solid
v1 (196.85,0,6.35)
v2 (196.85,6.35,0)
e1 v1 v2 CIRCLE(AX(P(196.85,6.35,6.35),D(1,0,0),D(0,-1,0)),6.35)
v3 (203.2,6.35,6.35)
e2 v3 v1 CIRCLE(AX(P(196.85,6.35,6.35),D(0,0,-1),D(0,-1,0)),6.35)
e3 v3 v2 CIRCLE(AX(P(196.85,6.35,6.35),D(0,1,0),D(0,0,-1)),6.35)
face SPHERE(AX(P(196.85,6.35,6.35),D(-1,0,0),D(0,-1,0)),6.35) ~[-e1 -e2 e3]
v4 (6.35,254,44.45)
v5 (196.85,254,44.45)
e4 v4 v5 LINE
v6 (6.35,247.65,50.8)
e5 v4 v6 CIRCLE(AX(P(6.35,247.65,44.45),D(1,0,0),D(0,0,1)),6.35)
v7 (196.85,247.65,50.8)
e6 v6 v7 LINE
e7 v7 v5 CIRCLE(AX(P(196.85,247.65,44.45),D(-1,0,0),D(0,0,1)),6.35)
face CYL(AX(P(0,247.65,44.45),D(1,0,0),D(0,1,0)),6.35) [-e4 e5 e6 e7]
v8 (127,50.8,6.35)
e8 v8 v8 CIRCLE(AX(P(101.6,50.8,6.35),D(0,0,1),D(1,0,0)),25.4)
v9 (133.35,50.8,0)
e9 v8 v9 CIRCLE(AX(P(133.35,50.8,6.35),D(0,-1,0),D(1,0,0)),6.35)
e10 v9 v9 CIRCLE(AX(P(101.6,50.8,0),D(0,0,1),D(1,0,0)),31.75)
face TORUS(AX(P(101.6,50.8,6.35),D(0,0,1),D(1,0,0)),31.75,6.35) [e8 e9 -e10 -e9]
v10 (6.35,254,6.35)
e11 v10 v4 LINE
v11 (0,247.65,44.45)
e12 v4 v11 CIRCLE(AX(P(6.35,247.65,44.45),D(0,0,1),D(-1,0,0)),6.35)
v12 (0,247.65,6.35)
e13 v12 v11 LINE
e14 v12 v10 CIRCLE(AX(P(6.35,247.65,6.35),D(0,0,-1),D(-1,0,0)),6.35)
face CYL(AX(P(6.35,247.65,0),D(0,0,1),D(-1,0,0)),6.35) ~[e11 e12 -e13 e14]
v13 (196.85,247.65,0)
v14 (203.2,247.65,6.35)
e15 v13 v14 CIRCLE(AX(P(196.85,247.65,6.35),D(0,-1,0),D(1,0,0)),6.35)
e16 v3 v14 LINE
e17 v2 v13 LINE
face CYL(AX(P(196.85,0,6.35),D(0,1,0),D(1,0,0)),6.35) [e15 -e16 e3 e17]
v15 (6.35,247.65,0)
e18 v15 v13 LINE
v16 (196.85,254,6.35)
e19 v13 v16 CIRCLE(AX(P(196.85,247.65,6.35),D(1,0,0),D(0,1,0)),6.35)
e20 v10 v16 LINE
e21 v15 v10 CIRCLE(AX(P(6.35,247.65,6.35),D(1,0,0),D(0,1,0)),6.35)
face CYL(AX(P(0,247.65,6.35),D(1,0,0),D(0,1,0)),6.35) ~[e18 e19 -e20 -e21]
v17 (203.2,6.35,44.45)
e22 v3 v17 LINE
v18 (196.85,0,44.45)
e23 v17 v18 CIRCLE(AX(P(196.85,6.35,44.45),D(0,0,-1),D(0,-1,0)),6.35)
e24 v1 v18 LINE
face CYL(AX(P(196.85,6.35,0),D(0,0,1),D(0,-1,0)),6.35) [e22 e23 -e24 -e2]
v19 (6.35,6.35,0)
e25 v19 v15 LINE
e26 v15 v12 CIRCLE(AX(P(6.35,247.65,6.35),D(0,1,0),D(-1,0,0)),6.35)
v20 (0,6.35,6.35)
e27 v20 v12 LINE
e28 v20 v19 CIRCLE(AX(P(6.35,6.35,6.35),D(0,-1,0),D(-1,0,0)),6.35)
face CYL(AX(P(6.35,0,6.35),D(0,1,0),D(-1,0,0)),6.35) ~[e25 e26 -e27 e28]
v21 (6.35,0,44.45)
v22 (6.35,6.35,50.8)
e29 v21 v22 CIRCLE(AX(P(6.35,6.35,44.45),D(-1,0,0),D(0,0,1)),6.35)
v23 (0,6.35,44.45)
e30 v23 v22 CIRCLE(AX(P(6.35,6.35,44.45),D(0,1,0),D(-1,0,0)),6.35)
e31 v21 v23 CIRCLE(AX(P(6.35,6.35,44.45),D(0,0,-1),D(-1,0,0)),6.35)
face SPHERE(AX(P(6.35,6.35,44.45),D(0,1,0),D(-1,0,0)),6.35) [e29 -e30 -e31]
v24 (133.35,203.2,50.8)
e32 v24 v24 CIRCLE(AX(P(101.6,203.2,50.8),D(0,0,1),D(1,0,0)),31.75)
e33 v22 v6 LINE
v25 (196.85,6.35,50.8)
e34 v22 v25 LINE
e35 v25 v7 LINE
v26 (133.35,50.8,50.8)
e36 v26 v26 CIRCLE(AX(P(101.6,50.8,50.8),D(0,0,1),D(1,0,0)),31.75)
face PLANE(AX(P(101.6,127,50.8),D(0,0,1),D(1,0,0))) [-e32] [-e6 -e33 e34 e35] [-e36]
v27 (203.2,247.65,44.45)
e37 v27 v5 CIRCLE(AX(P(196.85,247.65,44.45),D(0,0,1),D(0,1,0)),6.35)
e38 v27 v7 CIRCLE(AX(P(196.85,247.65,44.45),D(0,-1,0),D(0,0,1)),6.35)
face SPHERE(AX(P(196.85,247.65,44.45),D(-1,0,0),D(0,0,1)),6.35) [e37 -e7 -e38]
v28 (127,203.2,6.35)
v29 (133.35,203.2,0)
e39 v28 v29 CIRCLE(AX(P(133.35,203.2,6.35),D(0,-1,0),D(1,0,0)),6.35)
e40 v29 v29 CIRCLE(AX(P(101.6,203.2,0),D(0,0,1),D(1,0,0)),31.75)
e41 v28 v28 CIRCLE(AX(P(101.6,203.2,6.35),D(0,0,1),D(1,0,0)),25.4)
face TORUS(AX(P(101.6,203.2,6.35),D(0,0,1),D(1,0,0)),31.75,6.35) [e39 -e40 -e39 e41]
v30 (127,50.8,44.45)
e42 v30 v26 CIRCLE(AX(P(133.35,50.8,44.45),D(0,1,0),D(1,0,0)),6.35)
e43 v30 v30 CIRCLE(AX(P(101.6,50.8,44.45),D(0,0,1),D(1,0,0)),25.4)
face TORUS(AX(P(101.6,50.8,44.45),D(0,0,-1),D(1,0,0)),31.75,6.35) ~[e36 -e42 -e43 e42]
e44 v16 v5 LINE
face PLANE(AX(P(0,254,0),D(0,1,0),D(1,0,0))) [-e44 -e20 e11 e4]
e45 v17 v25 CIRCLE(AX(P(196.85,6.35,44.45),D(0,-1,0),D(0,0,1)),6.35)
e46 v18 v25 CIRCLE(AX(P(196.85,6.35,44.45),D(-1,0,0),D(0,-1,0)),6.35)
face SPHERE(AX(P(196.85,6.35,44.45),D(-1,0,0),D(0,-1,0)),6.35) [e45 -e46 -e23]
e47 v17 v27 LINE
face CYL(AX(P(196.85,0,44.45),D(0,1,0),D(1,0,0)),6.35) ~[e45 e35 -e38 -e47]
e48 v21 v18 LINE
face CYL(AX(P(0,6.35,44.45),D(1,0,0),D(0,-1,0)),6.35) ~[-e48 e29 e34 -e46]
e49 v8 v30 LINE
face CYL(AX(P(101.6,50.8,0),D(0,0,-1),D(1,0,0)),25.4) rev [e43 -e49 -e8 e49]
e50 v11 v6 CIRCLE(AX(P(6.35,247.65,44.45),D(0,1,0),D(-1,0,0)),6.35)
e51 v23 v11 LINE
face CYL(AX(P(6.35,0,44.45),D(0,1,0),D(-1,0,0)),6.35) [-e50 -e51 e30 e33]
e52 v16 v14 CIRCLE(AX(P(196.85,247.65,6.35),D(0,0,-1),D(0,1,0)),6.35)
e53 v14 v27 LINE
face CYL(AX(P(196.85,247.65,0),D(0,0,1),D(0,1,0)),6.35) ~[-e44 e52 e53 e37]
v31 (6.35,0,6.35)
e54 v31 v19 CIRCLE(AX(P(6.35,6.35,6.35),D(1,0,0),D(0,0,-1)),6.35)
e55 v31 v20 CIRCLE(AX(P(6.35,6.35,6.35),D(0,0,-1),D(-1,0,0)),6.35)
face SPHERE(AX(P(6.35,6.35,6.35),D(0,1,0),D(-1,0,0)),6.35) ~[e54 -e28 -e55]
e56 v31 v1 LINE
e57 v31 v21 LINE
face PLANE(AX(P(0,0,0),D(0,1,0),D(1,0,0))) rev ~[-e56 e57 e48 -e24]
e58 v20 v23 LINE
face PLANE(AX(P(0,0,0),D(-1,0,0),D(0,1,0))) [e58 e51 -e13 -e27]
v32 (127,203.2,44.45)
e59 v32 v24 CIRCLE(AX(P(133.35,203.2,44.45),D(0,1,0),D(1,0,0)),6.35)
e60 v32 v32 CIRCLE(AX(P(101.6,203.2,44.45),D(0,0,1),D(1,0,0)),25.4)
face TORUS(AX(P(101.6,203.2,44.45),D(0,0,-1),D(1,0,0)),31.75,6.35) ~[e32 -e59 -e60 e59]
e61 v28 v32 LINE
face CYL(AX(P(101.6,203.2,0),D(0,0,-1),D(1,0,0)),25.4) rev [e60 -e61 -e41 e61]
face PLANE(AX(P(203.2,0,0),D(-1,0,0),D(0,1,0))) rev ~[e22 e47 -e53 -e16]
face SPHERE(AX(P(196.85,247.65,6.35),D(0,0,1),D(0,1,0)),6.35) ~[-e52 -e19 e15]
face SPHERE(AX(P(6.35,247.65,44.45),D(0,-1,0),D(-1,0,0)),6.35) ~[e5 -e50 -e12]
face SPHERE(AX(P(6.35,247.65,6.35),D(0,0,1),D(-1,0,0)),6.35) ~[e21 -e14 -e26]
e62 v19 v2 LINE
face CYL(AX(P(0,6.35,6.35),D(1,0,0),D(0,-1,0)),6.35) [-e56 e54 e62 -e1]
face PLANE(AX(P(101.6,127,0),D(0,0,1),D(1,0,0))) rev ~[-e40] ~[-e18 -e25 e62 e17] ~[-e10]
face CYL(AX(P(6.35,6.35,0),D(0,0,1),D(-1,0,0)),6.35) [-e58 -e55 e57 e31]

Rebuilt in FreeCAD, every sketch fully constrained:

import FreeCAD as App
import Part
import Sketcher

V = App.Vector
Q = App.Units.Quantity

doc = App.newDocument("Part")
params = doc.addObject("Spreadsheet::Sheet", "Params")
for row, (alias, value) in enumerate([
    ("sketch1_diameter", "2 in"),
    ("sketch1_width", "8 in"),
    ("sketch1_height", "10 in"),
    ("pad1_length", "2 in"),
    ("fillet_radius", "0.25 in"),
], start=1):
    params.set(f"A{row}", alias)
    params.set(f"B{row}", "=" + value)
    params.setAlias(f"B{row}", alias)

body = doc.addObject("PartDesign::Body", "Body")

# Sketch on XY plane
sketch1 = doc.addObject("Sketcher::SketchObject", "Sketch")
body.addObject(sketch1)
sketch1.AttachmentSupport = (doc.XY_Plane, [""])
sketch1.MapMode = "FlatFace"
sketch1.addGeometry(Part.LineSegment(V(0, 254, 0), V(0, 0, 0)), False)
sketch1.addGeometry(Part.LineSegment(V(0, 0, 0), V(203.2, 0, 0)), False)
sketch1.addGeometry(Part.LineSegment(V(203.2, 0, 0), V(203.2, 254, 0)), False)
sketch1.addGeometry(Part.LineSegment(V(203.2, 254, 0), V(0, 254, 0)), False)
sketch1.addGeometry(Part.Circle(V(101.6, 50.8, 0), V(0, 0, 1), 25.4), False)
sketch1.addGeometry(Part.Circle(V(101.6, 203.2, 0), V(0, 0, 1), 25.4), False)
sketch1.addConstraint(Sketcher.Constraint("Coincident", 0, 2, 1, 1))
sketch1.addConstraint(Sketcher.Constraint("Coincident", 1, 2, 2, 1))
sketch1.addConstraint(Sketcher.Constraint("Coincident", 2, 2, 3, 1))
sketch1.addConstraint(Sketcher.Constraint("Coincident", 3, 2, 0, 1))
sketch1.addConstraint(Sketcher.Constraint("Vertical", 0))
sketch1.addConstraint(Sketcher.Constraint("Horizontal", 1))
sketch1.addConstraint(Sketcher.Constraint("Vertical", 2))
sketch1.addConstraint(Sketcher.Constraint("Horizontal", 3))
sketch1.addConstraint(Sketcher.Constraint("Coincident", 0, 2, -1, 1))
sketch1.addConstraint(Sketcher.Constraint("Equal", 4, 5))
sketch1.addConstraint(Sketcher.Constraint("Vertical", 4, 3, 5, 3))
sketch1.addConstraint(Sketcher.Constraint("Diameter", 4, Q("2 in")))
sketch1.addConstraint(Sketcher.Constraint("DistanceX", 1, 1, 1, 2, Q("8 in")))
sketch1.addConstraint(Sketcher.Constraint("DistanceY", 0, 2, 0, 1, Q("10 in")))
sketch1.addConstraint(Sketcher.Constraint("DistanceX", -1, 1, 4, 3, Q("4 in")))
sketch1.addConstraint(Sketcher.Constraint("DistanceY", -1, 1, 4, 3, Q("2 in")))
sketch1.addConstraint(Sketcher.Constraint("DistanceY", -1, 1, 5, 3, Q("8 in")))
sketch1.setExpression("Constraints[11]", "Params.sketch1_diameter")
sketch1.setExpression("Constraints[12]", "Params.sketch1_width")
sketch1.setExpression("Constraints[13]", "Params.sketch1_height")
pad1 = doc.addObject("PartDesign::Pad", "Pad")
body.addObject(pad1)
pad1.Profile = sketch1
pad1.setExpression("Length", "Params.pad1_length")
doc.recompute()

fillet = doc.addObject("PartDesign::Fillet", "Fillet")
body.addObject(fillet)
fillet.Base = (pad1, ["Edge1"])
fillet.UseAllEdges = True
fillet.setExpression("Radius", "Params.fillet_radius")

doc.recompute()
